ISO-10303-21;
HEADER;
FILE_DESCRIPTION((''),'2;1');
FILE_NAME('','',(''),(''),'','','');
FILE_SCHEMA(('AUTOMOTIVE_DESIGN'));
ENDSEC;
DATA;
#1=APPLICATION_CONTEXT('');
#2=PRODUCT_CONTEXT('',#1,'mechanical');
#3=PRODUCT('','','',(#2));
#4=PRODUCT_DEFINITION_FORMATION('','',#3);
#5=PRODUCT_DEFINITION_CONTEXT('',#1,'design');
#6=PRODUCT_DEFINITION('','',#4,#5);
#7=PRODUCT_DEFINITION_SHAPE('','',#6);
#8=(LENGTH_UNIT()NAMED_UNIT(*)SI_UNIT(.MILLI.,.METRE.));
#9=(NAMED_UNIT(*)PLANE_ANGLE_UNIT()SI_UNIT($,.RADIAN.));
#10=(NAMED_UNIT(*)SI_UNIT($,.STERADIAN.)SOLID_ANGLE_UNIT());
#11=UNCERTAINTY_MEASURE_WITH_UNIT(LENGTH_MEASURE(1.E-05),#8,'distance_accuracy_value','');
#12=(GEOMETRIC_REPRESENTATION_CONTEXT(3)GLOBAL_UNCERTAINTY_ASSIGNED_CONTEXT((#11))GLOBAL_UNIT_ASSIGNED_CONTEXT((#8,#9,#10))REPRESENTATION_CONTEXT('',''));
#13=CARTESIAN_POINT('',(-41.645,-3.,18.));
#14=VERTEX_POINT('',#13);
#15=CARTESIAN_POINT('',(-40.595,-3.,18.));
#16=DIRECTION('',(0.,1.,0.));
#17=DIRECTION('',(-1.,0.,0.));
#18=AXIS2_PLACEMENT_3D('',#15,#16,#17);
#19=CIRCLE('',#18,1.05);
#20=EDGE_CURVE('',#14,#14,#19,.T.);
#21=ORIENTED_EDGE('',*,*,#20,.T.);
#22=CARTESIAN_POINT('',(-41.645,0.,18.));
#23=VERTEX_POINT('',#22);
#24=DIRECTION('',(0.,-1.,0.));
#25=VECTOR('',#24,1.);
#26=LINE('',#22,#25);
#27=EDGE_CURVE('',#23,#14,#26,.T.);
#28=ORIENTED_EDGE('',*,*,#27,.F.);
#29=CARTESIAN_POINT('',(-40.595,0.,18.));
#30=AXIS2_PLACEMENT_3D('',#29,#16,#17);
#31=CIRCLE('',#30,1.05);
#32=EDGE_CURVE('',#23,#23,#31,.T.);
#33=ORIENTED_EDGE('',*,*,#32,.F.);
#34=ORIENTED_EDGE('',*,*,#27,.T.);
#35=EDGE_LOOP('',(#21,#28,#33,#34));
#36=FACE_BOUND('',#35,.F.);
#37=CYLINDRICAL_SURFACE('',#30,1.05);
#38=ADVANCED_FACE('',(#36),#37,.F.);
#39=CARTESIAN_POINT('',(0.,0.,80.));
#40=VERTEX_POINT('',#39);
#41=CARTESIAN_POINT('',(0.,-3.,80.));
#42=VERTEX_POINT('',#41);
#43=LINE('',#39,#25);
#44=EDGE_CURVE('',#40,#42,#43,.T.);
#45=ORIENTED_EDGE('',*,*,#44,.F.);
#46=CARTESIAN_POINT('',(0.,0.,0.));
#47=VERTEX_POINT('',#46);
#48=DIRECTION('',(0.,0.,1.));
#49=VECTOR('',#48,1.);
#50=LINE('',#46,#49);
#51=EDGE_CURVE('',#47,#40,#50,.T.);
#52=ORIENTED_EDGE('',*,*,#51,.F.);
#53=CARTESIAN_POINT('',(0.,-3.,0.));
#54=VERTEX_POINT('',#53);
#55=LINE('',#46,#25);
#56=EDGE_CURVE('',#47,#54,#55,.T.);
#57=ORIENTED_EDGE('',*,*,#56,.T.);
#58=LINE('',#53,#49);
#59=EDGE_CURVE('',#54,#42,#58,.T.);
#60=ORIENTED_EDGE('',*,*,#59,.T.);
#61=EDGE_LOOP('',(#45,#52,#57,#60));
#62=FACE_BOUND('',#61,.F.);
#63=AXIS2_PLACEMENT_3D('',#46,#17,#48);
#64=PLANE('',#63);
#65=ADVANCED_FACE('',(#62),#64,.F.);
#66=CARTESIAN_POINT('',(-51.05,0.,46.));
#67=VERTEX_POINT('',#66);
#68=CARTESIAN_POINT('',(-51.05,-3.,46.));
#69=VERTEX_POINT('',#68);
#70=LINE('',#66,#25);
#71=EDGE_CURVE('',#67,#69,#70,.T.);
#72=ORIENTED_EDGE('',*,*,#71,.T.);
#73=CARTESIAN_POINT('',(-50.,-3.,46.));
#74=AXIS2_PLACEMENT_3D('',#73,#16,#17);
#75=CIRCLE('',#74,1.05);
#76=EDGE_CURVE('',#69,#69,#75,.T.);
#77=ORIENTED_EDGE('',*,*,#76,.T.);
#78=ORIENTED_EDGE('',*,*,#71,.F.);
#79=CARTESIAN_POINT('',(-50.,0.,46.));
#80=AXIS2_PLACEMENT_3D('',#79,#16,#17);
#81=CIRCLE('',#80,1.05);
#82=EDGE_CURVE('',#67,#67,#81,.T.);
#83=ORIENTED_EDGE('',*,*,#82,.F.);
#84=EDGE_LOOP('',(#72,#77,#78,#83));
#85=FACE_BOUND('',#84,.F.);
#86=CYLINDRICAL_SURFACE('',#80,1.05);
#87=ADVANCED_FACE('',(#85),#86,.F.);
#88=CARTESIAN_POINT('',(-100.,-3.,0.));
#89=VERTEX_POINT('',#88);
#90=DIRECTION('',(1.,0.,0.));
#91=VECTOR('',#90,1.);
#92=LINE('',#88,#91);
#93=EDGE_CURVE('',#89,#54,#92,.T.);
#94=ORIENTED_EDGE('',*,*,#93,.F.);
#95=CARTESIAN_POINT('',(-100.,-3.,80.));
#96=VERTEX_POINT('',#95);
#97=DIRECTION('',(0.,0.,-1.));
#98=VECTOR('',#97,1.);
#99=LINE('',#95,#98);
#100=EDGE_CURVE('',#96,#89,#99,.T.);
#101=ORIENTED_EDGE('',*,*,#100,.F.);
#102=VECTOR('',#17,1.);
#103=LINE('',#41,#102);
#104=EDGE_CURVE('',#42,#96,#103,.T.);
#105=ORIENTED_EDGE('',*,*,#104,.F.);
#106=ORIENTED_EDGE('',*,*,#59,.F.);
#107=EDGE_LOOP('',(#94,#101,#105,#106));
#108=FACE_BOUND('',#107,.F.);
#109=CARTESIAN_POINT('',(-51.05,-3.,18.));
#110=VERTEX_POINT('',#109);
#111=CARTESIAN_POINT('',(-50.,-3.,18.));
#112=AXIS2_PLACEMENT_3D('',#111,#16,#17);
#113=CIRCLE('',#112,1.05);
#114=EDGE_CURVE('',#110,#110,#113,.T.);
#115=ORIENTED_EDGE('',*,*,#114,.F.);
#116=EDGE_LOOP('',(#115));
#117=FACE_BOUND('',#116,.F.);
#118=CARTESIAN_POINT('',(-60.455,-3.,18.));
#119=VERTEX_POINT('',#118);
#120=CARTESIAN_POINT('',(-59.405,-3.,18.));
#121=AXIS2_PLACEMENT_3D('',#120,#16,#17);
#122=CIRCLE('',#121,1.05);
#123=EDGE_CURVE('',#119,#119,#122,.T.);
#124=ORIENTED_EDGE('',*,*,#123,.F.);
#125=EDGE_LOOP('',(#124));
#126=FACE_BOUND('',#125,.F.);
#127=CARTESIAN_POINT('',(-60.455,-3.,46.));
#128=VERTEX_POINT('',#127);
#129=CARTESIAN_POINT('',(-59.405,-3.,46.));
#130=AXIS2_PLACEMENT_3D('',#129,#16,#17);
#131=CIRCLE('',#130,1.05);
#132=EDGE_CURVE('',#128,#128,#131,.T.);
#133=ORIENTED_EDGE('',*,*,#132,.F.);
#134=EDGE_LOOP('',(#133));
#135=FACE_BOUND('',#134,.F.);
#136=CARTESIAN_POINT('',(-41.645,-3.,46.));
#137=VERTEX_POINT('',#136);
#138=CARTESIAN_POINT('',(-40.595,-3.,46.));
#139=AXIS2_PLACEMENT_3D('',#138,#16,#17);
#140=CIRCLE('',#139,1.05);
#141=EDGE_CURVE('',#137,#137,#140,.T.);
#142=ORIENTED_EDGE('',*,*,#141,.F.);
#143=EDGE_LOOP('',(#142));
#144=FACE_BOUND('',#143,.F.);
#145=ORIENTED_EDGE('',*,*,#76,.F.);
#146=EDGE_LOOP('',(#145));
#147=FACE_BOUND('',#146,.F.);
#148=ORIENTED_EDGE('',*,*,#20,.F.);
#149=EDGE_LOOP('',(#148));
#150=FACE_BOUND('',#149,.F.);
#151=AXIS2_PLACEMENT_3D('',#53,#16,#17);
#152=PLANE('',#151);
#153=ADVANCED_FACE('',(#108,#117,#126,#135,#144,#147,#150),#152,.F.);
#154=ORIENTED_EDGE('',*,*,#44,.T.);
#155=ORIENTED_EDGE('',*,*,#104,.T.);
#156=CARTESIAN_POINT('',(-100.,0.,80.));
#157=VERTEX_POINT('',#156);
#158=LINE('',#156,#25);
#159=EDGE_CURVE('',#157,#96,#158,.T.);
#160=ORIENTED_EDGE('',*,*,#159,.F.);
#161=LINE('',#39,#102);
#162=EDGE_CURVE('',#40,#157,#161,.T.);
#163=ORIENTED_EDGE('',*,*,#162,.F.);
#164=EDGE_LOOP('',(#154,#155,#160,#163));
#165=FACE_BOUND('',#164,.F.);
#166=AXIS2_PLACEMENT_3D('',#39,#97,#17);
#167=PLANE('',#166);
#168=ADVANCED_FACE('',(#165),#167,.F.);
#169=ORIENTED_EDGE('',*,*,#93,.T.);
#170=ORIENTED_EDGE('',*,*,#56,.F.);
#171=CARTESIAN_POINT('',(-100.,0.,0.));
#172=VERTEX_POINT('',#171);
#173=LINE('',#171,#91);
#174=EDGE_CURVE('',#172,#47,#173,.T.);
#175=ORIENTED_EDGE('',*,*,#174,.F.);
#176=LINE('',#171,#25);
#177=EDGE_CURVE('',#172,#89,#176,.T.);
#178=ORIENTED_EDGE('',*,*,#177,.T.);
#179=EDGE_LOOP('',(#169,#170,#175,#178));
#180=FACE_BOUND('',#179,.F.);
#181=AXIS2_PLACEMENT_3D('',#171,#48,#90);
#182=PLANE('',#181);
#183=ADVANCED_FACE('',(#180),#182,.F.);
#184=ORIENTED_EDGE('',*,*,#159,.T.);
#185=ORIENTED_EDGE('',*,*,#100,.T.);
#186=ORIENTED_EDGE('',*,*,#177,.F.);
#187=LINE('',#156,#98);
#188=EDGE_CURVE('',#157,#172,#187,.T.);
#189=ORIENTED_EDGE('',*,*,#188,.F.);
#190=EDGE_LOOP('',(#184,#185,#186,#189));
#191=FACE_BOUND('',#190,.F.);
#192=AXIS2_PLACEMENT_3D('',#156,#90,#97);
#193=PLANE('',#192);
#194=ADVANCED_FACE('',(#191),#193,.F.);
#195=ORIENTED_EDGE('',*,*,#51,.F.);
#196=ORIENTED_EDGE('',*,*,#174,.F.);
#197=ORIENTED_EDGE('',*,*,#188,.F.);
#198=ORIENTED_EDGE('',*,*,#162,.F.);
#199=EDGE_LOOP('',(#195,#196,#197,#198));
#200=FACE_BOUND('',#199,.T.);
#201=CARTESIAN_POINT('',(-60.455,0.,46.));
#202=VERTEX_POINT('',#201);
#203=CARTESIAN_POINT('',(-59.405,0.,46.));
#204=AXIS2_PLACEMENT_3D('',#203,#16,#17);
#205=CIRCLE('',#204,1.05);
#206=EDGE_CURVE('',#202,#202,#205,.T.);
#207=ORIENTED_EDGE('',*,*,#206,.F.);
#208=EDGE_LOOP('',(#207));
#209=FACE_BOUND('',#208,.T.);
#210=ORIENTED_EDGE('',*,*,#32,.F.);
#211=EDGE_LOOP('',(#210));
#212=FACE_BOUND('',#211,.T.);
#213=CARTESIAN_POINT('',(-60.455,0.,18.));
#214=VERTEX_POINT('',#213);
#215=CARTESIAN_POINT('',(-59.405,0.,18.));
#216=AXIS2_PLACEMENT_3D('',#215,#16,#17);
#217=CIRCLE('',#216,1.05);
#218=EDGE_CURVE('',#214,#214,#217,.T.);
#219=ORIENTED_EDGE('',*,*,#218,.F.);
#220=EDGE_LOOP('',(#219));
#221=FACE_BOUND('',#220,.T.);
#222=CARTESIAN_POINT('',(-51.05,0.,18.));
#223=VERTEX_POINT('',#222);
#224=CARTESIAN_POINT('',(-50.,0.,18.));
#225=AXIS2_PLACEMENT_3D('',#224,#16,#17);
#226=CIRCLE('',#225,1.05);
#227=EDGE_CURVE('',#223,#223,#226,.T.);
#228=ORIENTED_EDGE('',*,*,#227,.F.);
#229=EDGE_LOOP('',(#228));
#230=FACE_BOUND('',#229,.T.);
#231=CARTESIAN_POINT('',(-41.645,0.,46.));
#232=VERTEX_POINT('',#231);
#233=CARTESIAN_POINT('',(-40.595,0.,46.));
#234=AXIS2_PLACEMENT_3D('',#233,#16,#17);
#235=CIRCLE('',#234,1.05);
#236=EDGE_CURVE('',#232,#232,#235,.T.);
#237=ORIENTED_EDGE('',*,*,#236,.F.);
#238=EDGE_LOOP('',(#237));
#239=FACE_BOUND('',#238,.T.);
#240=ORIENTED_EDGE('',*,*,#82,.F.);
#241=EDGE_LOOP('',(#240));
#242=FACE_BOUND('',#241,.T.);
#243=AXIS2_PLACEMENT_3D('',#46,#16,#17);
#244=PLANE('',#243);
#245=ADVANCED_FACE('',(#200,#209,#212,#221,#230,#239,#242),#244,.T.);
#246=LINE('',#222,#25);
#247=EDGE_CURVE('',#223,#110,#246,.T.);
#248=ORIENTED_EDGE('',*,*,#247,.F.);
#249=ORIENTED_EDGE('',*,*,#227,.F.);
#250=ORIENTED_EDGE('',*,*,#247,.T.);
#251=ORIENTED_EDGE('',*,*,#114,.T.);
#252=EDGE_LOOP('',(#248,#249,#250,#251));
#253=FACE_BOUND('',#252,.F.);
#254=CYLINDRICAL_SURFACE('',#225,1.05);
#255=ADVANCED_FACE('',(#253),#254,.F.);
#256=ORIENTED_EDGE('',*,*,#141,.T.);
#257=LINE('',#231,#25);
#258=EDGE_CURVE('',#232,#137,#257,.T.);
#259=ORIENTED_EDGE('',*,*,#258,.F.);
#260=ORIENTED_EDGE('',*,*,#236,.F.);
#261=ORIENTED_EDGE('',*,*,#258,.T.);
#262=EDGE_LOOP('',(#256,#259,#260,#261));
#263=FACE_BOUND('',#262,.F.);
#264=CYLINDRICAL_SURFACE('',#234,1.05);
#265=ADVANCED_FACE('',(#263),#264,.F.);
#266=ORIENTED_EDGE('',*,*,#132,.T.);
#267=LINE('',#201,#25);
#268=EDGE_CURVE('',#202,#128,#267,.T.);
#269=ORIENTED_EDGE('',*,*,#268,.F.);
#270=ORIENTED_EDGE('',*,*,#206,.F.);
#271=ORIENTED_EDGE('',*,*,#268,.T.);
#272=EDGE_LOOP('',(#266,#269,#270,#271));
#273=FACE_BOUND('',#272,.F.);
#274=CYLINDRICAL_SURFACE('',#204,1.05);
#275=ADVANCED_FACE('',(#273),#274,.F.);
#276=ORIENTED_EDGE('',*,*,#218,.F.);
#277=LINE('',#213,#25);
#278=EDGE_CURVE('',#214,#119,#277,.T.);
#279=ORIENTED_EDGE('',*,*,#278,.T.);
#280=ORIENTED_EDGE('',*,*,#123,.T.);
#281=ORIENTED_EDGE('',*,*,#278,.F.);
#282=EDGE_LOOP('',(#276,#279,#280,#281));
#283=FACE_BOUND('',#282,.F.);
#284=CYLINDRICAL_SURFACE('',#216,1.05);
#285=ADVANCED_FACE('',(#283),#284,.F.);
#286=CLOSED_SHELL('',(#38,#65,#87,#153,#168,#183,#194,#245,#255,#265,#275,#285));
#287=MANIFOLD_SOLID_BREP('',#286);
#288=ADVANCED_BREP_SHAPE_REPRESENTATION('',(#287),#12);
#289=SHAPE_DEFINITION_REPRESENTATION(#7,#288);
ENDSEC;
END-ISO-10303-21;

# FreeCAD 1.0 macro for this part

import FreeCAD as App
import Part
import Sketcher

doc = App.newDocument("Part")
params = doc.addObject("Spreadsheet::Sheet", "Params")
for row, (alias, value) in enumerate([
    ("sketch1_diameter", "2.1 mm"),
    ("sketch1_width", "100 mm"),
    ("sketch1_height", "80 mm"),
    ("pad1_length", "3 mm"),
], start=1):
    params.set(f"A{row}", alias)
    params.set(f"B{row}", "=" + value)
    params.setAlias(f"B{row}", alias)

body = doc.addObject("PartDesign::Body", "Body")

sketch1 = doc.addObject("Sketcher::SketchObject", "Sketch")
body.addObject(sketch1)
sketch1.AttachmentSupport = (doc.XZ_Plane, [""])
sketch1.MapMode = "FlatFace"
sketch1.addGeometry(Part.LineSegment(App.Vector(-100, 0, 0), App.Vector(-100, 80, 0)), False)
sketch1.addGeometry(Part.LineSegment(App.Vector(-100, 80, 0), App.Vector(0, 80, 0)), False)
sketch1.addGeometry(Part.LineSegment(App.Vector(0, 80, 0), App.Vector(0, 0, 0)), False)
sketch1.addGeometry(Part.LineSegment(App.Vector(0, 0, 0), App.Vector(-100, 0, 0)), False)
sketch1.addGeometry(Part.Circle(App.Vector(-59.4, 18, 0), App.Vector(0, 0, 1), 1.1), False)
sketch1.addGeometry(Part.Circle(App.Vector(-40.6, 18, 0), App.Vector(0, 0, 1), 1.1), False)
sketch1.addGeometry(Part.Circle(App.Vector(-50, 18, 0), App.Vector(0, 0, 1), 1.1), False)
sketch1.addGeometry(Part.Circle(App.Vector(-59.4, 46, 0), App.Vector(0, 0, 1), 1.1), False)
sketch1.addGeometry(Part.Circle(App.Vector(-40.6, 46, 0), App.Vector(0, 0, 1), 1.1), False)
sketch1.addGeometry(Part.Circle(App.Vector(-50, 46, 0), App.Vector(0, 0, 1), 1.1), False)
sketch1.addConstraint(Sketcher.Constraint("Coincident", 0, 2, 1, 1))
sketch1.addConstraint(Sketcher.Constraint("Coincident", 1, 2, 2, 1))
sketch1.addConstraint(Sketcher.Constraint("Coincident", 2, 2, 3, 1))
sketch1.addConstraint(Sketcher.Constraint("Coincident", 3, 2, 0, 1))
sketch1.addConstraint(Sketcher.Constraint("Vertical", 0))
sketch1.addConstraint(Sketcher.Constraint("Horizontal", 1))
sketch1.addConstraint(Sketcher.Constraint("Vertical", 2))
sketch1.addConstraint(Sketcher.Constraint("Horizontal", 3))
sketch1.addConstraint(Sketcher.Constraint("Coincident", 2, 2, -1, 1))
sketch1.addConstraint(Sketcher.Constraint("Equal", 4, 5))
sketch1.addConstraint(Sketcher.Constraint("Equal", 5, 6))
sketch1.addConstraint(Sketcher.Constraint("Equal", 6, 7))
sketch1.addConstraint(Sketcher.Constraint("Equal", 7, 8))
sketch1.addConstraint(Sketcher.Constraint("Equal", 8, 9))
sketch1.addConstraint(Sketcher.Constraint("Horizontal", 4, 3, 5, 3))
sketch1.addConstraint(Sketcher.Constraint("Horizontal", 5, 3, 6, 3))
sketch1.addConstraint(Sketcher.Constraint("Horizontal", 7, 3, 8, 3))
sketch1.addConstraint(Sketcher.Constraint("Horizontal", 8, 3, 9, 3))
sketch1.addConstraint(Sketcher.Constraint("Vertical", 4, 3, 7, 3))
sketch1.addConstraint(Sketcher.Constraint("Vertical", 5, 3, 8, 3))
sketch1.addConstraint(Sketcher.Constraint("Vertical", 6, 3, 9, 3))
sketch1.addConstraint(Sketcher.Constraint("Diameter", 4, 2.1))
sketch1.addConstraint(Sketcher.Constraint("DistanceX", 1, 1, 1, 2, 100.0))
sketch1.addConstraint(Sketcher.Constraint("DistanceY", 0, 1, 0, 2, 80.0))
sketch1.addConstraint(Sketcher.Constraint("DistanceY", -1, 1, 4, 3, 18.0))
sketch1.addConstraint(Sketcher.Constraint("DistanceX", 6, 3, -1, 1, 50.0))
sketch1.addConstraint(Sketcher.Constraint("DistanceY", -1, 1, 7, 3, 46.0))
sketch1.addConstraint(Sketcher.Constraint("DistanceX", 4, 3, 5, 3, 18.81))
sketch1.addConstraint(Sketcher.Constraint("DistanceX", 4, 3, -1, 1, 59.405))
sketch1.setExpression("Constraints[21]", "Params.sketch1_diameter")
sketch1.setExpression("Constraints[22]", "Params.sketch1_width")
sketch1.setExpression("Constraints[23]", "Params.sketch1_height")
pad1 = doc.addObject("PartDesign::Pad", "Pad")
body.addObject(pad1)
pad1.Profile = sketch1
pad1.setExpression("Length", "Params.pad1_length")

doc.recompute()
